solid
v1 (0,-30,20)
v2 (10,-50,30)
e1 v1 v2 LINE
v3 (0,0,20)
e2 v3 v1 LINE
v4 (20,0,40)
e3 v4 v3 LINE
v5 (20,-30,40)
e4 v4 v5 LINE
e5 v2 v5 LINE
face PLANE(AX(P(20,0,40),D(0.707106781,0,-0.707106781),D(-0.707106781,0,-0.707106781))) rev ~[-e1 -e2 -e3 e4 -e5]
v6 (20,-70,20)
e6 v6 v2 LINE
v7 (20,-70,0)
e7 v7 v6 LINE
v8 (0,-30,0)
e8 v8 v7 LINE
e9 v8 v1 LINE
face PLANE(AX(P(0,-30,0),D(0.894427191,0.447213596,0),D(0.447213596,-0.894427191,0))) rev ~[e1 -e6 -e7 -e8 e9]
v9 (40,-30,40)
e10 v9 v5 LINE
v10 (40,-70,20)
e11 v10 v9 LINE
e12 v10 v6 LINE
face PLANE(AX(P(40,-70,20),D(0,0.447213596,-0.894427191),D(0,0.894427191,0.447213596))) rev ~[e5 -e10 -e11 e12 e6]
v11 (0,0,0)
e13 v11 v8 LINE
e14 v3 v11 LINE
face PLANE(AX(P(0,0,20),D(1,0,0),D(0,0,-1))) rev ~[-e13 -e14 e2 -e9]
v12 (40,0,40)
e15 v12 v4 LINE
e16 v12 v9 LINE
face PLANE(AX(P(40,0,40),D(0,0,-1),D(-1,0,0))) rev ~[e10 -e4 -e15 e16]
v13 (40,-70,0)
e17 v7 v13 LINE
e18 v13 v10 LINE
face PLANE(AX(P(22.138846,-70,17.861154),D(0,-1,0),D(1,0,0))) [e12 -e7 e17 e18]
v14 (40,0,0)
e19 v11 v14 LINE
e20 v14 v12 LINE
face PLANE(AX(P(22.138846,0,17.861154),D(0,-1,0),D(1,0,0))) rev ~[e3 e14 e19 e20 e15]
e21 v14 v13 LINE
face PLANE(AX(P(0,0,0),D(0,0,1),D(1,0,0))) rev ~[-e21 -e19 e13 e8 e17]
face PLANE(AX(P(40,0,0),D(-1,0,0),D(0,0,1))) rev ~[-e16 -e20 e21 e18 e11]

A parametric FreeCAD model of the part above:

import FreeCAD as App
import Part
import Sketcher

V = App.Vector


def add_polygon(sketch, points):
    """Adds a closed chain of lines whose ends are joined by coincident constraints."""
    first, n = sketch.GeometryCount, len(points)
    for a, b in zip(points, points[1:] + points[:1]):
        sketch.addGeometry(Part.LineSegment(App.Vector(*a, 0), App.Vector(*b, 0)), False)
    for i in range(n):
        sketch.addConstraint(Sketcher.Constraint("Coincident", first + i, 2, first + (i + 1) % n, 1))

doc = App.newDocument("Part")
body = doc.addObject("PartDesign::Body", "Body")

# Sketch on XZ plane
sketch1 = body.newObject("Sketcher::SketchObject", "Sketch")
sketch1.AttachmentSupport = (doc.getObject("XZ_Plane"), [""])
sketch1.MapMode = "FlatFace"
add_polygon(sketch1, [(0, 20), (0, 0), (40, 0), (40, 40), (20, 40)])  # lines 0-4
sketch1.addConstraint([
    Sketcher.Constraint("Vertical", 0),
    Sketcher.Constraint("Horizontal", 1),
    Sketcher.Constraint("Vertical", 2),
    Sketcher.Constraint("Horizontal", 3),
    Sketcher.Constraint("Coincident", 0, 2, -1, 1),
    Sketcher.Constraint("Equal", 3, 0),
    Sketcher.Constraint("Equal", 1, 2),
    Sketcher.Constraint("DistanceX", 1, 1, 1, 2, 40.0),
    Sketcher.Constraint("DistanceX", 3, 2, 3, 1, 20.0),
])
pad1 = body.newObject("PartDesign::Pad", "Pad")
pad1.Profile = sketch1
pad1.Length = 70

# Sketch on XY plane
sketch2 = body.newObject("Sketcher::SketchObject", "Sketch001")
sketch2.AttachmentSupport = (doc.getObject("XY_Plane"), [""])
sketch2.MapMode = "FlatFace"
add_polygon(sketch2, [(0, -30), (20, -70), (0, -70)])  # lines 0-2
sketch2.addConstraint([
    Sketcher.Constraint("Horizontal", 1),
    Sketcher.Constraint("Vertical", 2),
    Sketcher.Constraint("PointOnObject", 1, 2, -2),
    Sketcher.Constraint("DistanceX", 1, 2, 1, 1, 20.0),
    Sketcher.Constraint("DistanceY", 2, 1, 2, 2, 40.0),
    Sketcher.Constraint("DistanceY", 0, 2, -1, 1, 70.0),
])
pocket1 = body.newObject("PartDesign::Pocket", "Pocket")
pocket1.Profile = sketch2
pocket1.Type = "ThroughAll"
pocket1.Reversed = True

# Sketch on YZ plane
sketch3 = body.newObject("Sketcher::SketchObject", "Sketch002")
sketch3.AttachmentSupport = (doc.getObject("YZ_Plane"), [""])
sketch3.MapMode = "FlatFace"
sketch3.AttachmentOffset = App.Placement(V(0, 0, 40), App.Rotation())
add_polygon(sketch3, [(-70, 40), (-70, 20), (-30, 40)])  # lines 0-2
sketch3.addConstraint([
    Sketcher.Constraint("Vertical", 0),
    Sketcher.Constraint("Horizontal", 2),
    Sketcher.Constraint("DistanceX", 2, 2, 2, 1, 40.0),
    Sketcher.Constraint("DistanceY", 0, 2, 0, 1, 20.0),
    Sketcher.Constraint("DistanceX", 0, 2, -1, 1, 70.0),
    Sketcher.Constraint("DistanceY", -1, 1, 0, 2, 20.0),
])
pocket2 = body.newObject("PartDesign::Pocket", "Pocket001")
pocket2.Profile = sketch3
pocket2.Type = "ThroughAll"

doc.recompute()
